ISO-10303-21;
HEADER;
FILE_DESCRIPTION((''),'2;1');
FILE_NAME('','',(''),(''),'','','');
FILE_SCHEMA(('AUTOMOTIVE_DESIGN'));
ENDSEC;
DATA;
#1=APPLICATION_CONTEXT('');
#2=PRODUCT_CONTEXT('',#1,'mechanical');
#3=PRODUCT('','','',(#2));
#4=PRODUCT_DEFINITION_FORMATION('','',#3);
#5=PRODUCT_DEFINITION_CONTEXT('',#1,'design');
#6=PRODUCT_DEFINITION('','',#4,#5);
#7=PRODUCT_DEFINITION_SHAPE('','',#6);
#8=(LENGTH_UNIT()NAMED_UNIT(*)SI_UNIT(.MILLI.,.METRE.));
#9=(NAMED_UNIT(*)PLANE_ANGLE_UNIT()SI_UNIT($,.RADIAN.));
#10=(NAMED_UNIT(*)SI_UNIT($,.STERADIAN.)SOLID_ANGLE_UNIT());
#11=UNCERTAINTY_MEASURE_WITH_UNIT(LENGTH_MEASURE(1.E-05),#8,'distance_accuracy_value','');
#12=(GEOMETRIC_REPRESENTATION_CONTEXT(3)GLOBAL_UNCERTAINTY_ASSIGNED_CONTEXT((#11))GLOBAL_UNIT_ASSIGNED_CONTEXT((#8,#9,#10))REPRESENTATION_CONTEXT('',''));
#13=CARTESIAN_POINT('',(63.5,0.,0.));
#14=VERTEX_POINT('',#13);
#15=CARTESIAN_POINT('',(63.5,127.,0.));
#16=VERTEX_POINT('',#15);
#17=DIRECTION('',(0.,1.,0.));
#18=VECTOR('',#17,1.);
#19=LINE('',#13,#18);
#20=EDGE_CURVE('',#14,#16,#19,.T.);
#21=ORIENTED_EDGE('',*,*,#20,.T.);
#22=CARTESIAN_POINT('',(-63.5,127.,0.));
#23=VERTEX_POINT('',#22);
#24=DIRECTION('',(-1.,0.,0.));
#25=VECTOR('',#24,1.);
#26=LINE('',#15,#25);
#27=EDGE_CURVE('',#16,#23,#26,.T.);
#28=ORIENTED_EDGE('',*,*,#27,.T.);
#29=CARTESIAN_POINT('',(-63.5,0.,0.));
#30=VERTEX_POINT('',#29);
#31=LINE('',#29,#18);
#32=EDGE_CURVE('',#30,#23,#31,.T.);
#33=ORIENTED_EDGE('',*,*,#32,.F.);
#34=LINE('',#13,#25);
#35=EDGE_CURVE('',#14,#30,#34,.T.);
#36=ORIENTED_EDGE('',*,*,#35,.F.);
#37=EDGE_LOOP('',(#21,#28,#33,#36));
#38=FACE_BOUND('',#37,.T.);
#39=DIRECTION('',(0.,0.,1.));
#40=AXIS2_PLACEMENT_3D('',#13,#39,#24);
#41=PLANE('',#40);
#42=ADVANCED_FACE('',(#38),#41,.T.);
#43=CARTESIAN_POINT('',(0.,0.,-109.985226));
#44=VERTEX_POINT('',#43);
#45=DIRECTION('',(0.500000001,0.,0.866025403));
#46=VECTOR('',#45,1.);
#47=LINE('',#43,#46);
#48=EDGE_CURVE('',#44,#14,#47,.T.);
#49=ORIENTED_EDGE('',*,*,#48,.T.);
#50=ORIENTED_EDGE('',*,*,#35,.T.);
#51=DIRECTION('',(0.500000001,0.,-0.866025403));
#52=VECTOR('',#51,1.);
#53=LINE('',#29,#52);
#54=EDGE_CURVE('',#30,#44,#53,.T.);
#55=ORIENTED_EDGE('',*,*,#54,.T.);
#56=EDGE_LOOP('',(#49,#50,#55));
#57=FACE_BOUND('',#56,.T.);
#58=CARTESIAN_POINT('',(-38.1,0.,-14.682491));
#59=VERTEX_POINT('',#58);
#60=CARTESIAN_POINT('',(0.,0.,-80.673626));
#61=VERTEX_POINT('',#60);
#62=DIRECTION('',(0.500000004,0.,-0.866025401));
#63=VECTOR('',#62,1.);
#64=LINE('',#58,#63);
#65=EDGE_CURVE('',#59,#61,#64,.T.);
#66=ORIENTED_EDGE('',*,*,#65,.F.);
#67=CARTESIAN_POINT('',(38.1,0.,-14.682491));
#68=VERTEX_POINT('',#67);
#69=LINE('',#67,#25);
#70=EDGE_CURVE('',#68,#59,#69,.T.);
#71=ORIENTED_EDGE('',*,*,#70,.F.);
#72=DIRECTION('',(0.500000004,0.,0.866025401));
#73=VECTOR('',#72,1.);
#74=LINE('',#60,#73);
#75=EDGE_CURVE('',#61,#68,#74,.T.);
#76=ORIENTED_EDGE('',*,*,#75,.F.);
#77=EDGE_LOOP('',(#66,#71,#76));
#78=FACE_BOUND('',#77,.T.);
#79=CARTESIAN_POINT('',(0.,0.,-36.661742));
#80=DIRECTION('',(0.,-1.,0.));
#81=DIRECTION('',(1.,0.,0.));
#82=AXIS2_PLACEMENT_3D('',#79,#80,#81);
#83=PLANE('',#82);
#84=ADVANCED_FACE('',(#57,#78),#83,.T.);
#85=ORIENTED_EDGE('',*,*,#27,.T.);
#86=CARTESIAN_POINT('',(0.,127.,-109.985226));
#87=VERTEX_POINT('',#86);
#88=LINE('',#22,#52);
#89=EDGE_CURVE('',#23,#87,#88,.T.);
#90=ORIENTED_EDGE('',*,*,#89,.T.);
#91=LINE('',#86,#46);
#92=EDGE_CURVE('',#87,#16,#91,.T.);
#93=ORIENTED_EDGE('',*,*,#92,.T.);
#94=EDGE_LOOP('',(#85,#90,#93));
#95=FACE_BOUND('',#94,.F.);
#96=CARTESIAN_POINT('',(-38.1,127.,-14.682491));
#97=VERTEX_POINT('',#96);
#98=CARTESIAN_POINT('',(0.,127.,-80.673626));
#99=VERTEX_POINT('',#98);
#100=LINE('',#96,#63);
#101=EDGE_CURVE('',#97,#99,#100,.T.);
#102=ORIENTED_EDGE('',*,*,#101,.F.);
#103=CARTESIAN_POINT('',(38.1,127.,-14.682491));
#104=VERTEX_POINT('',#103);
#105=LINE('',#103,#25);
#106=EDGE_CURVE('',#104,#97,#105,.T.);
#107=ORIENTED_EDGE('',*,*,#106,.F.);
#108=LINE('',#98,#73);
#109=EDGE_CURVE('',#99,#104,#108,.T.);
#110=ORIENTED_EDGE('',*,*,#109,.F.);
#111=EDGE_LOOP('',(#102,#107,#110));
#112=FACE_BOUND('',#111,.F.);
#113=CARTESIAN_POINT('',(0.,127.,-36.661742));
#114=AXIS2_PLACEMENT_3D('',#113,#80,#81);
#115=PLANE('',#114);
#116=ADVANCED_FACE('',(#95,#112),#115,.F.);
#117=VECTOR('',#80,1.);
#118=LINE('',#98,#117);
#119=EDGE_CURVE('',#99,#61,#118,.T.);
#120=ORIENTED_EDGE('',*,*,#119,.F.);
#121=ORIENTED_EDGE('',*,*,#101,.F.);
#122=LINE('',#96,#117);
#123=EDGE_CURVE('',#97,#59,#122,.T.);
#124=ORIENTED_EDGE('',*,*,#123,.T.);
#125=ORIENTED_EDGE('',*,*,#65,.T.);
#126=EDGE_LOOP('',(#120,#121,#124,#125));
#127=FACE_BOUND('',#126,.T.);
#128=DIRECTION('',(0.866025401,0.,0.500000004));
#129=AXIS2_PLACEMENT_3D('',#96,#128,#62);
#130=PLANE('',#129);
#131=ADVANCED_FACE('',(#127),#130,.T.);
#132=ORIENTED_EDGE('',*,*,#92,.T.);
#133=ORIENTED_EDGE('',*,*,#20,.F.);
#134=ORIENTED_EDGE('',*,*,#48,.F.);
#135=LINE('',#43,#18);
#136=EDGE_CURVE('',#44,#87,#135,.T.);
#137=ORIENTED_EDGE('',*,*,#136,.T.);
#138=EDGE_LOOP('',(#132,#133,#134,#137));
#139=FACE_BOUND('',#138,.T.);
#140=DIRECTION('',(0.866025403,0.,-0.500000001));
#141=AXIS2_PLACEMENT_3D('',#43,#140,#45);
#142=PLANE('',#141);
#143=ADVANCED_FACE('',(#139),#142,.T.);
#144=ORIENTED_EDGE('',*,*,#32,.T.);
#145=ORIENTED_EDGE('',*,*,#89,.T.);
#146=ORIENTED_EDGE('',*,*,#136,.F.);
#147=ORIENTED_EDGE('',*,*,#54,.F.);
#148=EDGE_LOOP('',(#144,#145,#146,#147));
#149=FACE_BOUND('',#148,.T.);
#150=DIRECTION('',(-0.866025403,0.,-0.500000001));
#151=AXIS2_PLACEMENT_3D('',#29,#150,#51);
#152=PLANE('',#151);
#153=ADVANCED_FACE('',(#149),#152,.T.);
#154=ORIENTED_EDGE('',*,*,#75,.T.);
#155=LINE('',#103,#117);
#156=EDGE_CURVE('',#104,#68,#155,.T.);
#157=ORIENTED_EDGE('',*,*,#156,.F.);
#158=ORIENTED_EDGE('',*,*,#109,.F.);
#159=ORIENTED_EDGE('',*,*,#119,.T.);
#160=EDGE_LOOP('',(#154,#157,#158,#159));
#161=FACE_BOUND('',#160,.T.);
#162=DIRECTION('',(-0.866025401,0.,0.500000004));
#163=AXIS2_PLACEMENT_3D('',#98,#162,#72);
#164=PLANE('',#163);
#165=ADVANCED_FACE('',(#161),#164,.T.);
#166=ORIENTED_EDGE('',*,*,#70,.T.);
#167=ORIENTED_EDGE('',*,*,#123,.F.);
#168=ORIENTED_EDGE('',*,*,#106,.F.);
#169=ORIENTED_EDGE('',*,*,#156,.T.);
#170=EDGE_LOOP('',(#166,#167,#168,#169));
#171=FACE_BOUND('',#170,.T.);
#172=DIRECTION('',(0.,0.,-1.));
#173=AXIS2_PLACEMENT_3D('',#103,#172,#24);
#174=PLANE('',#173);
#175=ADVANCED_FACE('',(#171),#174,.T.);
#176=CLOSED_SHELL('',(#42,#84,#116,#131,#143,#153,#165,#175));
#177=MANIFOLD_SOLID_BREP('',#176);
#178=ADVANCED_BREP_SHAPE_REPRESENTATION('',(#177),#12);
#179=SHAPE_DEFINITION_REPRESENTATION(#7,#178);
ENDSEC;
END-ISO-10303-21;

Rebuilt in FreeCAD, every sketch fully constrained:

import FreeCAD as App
import Part
import Sketcher

V = App.Vector
Q = App.Units.Quantity


def add_polygon(sketch, points):
    """Adds a closed chain of lines whose ends are joined by coincident constraints."""
    first, n = sketch.GeometryCount, len(points)
    for a, b in zip(points, points[1:] + points[:1]):
        sketch.addGeometry(Part.LineSegment(App.Vector(*a, 0), App.Vector(*b, 0)), False)
    for i in range(n):
        sketch.addConstraint(Sketcher.Constraint("Coincident", first + i, 2, first + (i + 1) % n, 1))

doc = App.newDocument("Part")
params = doc.addObject("Spreadsheet::Sheet", "Params")
for row, (alias, value) in enumerate([
    ("sketch1_width", "5 in"),
    ("sketch1_length", "5 in"),
    ("pad1_length", "5 in"),
    ("sketch2_width", "3 in"),
    ("sketch2_length", "3 in"),
    ("pocket1_length", "5 in"),
], start=1):
    params.set(f"A{row}", alias)
    params.set(f"B{row}", "=" + value)
    params.setAlias(f"B{row}", alias)

body = doc.addObject("PartDesign::Body", "Body")

# Sketch on XZ plane
sketch1 = doc.addObject("Sketcher::SketchObject", "Sketch")
body.addObject(sketch1)
sketch1.AttachmentSupport = (doc.XZ_Plane, [""])
sketch1.MapMode = "FlatFace"
add_polygon(sketch1, [(64, 0), (-64, 0), (0, -110)])  # lines 0-2
sketch1.addConstraint([
    Sketcher.Constraint("Horizontal", 0),
    Sketcher.Constraint("Symmetric", 0, 2, 2, 2, -1, 1),
    Sketcher.Constraint("PointOnObject", 1, 2, -2),
    Sketcher.Constraint("DistanceX", 0, 2, 0, 1, Q("5 in")),
    Sketcher.Constraint("Distance", 1, Q("5 in")),
])
sketch1.setExpression("Constraints[6]", "Params.sketch1_width")
sketch1.setExpression("Constraints[7]", "Params.sketch1_length")
pad1 = doc.addObject("PartDesign::Pad", "Pad")
body.addObject(pad1)
pad1.Profile = sketch1
pad1.setExpression("Length", "Params.pad1_length")
pad1.Reversed = True

# Sketch on XZ plane
sketch2 = doc.addObject("Sketcher::SketchObject", "Sketch001")
body.addObject(sketch2)
sketch2.AttachmentSupport = (doc.XZ_Plane, [""])
sketch2.MapMode = "FlatFace"
sketch2.AttachmentOffset = App.Placement(V(0, 0, -5 * 25.4), App.Rotation())
add_polygon(sketch2, [(38, -15), (-38, -15), (0, -81)])  # lines 0-2
sketch2.addConstraint([
    Sketcher.Constraint("Horizontal", 0),
    Sketcher.Constraint("PointOnObject", 1, 2, -2),
    Sketcher.Constraint("Equal", 1, 2),
    Sketcher.Constraint("DistanceX", 0, 2, 0, 1, Q("3 in")),
    Sketcher.Constraint("Distance", 1, Q("3 in")),
    Sketcher.Constraint("DistanceY", 0, 2, -1, 1, Q("14.682491 mm")),
])
sketch2.setExpression("Constraints[6]", "Params.sketch2_width")
sketch2.setExpression("Constraints[7]", "Params.sketch2_length")
pocket1 = doc.addObject("PartDesign::Pocket", "Pocket")
body.addObject(pocket1)
pocket1.Profile = sketch2
pocket1.setExpression("Length", "Params.pocket1_length")
pocket1.Reversed = True

doc.recompute()
